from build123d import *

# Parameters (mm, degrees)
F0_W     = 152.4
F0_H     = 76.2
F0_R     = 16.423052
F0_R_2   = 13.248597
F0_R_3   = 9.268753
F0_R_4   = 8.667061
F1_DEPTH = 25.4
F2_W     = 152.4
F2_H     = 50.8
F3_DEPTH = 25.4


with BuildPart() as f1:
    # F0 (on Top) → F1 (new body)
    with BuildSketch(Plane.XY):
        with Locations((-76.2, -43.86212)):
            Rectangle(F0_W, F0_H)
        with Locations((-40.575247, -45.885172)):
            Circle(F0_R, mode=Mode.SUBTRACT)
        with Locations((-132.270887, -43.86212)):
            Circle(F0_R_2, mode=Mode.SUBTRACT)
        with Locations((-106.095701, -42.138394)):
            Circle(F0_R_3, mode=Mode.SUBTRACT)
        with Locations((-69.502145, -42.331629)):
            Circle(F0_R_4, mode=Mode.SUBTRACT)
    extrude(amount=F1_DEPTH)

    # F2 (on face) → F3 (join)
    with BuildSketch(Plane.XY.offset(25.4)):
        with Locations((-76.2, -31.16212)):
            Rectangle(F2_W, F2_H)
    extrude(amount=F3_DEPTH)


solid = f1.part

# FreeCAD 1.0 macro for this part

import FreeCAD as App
import Part
import Sketcher

V = App.Vector
Q = App.Units.Quantity


def add_polygon(sketch, points):
    """Adds a closed chain of lines whose ends are joined by coincident constraints."""
    first, n = sketch.GeometryCount, len(points)
    for a, b in zip(points, points[1:] + points[:1]):
        sketch.addGeometry(Part.LineSegment(App.Vector(*a, 0), App.Vector(*b, 0)), False)
    for i in range(n):
        sketch.addConstraint(Sketcher.Constraint("Coincident", first + i, 2, first + (i + 1) % n, 1))

doc = App.newDocument("Part")
body = doc.addObject("PartDesign::Body", "Body")

# Sketch on XY plane
sketch1 = body.newObject("Sketcher::SketchObject", "Sketch")
sketch1.AttachmentSupport = (doc.getObject("XY_Plane"), [""])
sketch1.MapMode = "FlatFace"
add_polygon(sketch1, [(-152.4, -5.76212), (-152.4, -81.96212), (0, -81.96212), (0, -5.76212)])  # lines 0-3
sketch1.addGeometry(Part.Circle(V(-132.270887, -43.86212, 0), V(0, 0, 1), 13.248597), False)  # 4
sketch1.addGeometry(Part.Circle(V(-106.095701, -42.138394, 0), V(0, 0, 1), 9.268753), False)  # 5
sketch1.addGeometry(Part.Circle(V(-69.502145, -42.331629, 0), V(0, 0, 1), 8.667061), False)  # 6
sketch1.addGeometry(Part.Circle(V(-40.575247, -45.885172, 0), V(0, 0, 1), 16.423052), False)  # 7
sketch1.addConstraint(Sketcher.Constraint("Vertical", 0))
sketch1.addConstraint(Sketcher.Constraint("Horizontal", 1))
sketch1.addConstraint(Sketcher.Constraint("Vertical", 2))
sketch1.addConstraint(Sketcher.Constraint("Horizontal", 3))
sketch1.addConstraint(Sketcher.Constraint("PointOnObject", 1, 2, -2))
sketch1.addConstraint(Sketcher.Constraint("DistanceX", 1, 1, 1, 2, Q("6 in")))
sketch1.addConstraint(Sketcher.Constraint("DistanceY", 0, 2, 0, 1, Q("3 in")))
sketch1.addConstraint(Sketcher.Constraint("DistanceY", 0, 2, 4, 3, Q("1.5 in")))
sketch1.addConstraint(Sketcher.Constraint("Diameter", 4, 26.497194))
sketch1.addConstraint(Sketcher.Constraint("Diameter", 5, 18.537506))
sketch1.addConstraint(Sketcher.Constraint("Diameter", 6, 17.334122))
sketch1.addConstraint(Sketcher.Constraint("Diameter", 7, 32.846104))
sketch1.addConstraint(Sketcher.Constraint("DistanceX", 5, 3, -1, 1, 106.095701))
sketch1.addConstraint(Sketcher.Constraint("DistanceX", 6, 3, 7, 3, 28.926898))
sketch1.addConstraint(Sketcher.Constraint("DistanceY", 4, 3, -1, 1, 43.86212))
sketch1.addConstraint(Sketcher.Constraint("DistanceY", 6, 3, -1, 1, 42.331629))
sketch1.addConstraint(Sketcher.Constraint("DistanceY", 7, 3, -1, 1, 45.885172))
sketch1.addConstraint(Sketcher.Constraint("DistanceX", 4, 3, 6, 3, 62.768742))
sketch1.addConstraint(Sketcher.Constraint("DistanceX", 4, 3, -1, 1, 132.270887))
sketch1.addConstraint(Sketcher.Constraint("DistanceY", 5, 3, -1, 1, 42.138394))
pad1 = body.newObject("PartDesign::Pad", "Pad")
pad1.Profile = sketch1
pad1.Length = Q("1 in")

# Sketch on XY plane
sketch2 = body.newObject("Sketcher::SketchObject", "Sketch001")
sketch2.AttachmentSupport = (doc.getObject("XY_Plane"), [""])
sketch2.MapMode = "FlatFace"
sketch2.AttachmentOffset = App.Placement(V(0, 0, 1 * 25.4), App.Rotation())
add_polygon(sketch2, [(-152.4, -5.76212), (-152.4, -56.56212), (0, -56.56212), (0, -5.76212)])  # lines 0-3
sketch2.addConstraint(Sketcher.Constraint("Vertical", 0))
sketch2.addConstraint(Sketcher.Constraint("Horizontal", 1))
sketch2.addConstraint(Sketcher.Constraint("Vertical", 2))
sketch2.addConstraint(Sketcher.Constraint("Horizontal", 3))
sketch2.addConstraint(Sketcher.Constraint("PointOnObject", 1, 2, -2))
sketch2.addConstraint(Sketcher.Constraint("DistanceX", 1, 1, 1, 2, Q("6 in")))
sketch2.addConstraint(Sketcher.Constraint("DistanceY", 0, 2, 0, 1, Q("2 in")))
sketch2.addConstraint(Sketcher.Constraint("DistanceY", 0, 2, -1, 1, 56.56212))
pad2 = body.newObject("PartDesign::Pad", "Pad001")
pad2.Profile = sketch2
pad2.Length = Q("1 in")

doc.recompute()
